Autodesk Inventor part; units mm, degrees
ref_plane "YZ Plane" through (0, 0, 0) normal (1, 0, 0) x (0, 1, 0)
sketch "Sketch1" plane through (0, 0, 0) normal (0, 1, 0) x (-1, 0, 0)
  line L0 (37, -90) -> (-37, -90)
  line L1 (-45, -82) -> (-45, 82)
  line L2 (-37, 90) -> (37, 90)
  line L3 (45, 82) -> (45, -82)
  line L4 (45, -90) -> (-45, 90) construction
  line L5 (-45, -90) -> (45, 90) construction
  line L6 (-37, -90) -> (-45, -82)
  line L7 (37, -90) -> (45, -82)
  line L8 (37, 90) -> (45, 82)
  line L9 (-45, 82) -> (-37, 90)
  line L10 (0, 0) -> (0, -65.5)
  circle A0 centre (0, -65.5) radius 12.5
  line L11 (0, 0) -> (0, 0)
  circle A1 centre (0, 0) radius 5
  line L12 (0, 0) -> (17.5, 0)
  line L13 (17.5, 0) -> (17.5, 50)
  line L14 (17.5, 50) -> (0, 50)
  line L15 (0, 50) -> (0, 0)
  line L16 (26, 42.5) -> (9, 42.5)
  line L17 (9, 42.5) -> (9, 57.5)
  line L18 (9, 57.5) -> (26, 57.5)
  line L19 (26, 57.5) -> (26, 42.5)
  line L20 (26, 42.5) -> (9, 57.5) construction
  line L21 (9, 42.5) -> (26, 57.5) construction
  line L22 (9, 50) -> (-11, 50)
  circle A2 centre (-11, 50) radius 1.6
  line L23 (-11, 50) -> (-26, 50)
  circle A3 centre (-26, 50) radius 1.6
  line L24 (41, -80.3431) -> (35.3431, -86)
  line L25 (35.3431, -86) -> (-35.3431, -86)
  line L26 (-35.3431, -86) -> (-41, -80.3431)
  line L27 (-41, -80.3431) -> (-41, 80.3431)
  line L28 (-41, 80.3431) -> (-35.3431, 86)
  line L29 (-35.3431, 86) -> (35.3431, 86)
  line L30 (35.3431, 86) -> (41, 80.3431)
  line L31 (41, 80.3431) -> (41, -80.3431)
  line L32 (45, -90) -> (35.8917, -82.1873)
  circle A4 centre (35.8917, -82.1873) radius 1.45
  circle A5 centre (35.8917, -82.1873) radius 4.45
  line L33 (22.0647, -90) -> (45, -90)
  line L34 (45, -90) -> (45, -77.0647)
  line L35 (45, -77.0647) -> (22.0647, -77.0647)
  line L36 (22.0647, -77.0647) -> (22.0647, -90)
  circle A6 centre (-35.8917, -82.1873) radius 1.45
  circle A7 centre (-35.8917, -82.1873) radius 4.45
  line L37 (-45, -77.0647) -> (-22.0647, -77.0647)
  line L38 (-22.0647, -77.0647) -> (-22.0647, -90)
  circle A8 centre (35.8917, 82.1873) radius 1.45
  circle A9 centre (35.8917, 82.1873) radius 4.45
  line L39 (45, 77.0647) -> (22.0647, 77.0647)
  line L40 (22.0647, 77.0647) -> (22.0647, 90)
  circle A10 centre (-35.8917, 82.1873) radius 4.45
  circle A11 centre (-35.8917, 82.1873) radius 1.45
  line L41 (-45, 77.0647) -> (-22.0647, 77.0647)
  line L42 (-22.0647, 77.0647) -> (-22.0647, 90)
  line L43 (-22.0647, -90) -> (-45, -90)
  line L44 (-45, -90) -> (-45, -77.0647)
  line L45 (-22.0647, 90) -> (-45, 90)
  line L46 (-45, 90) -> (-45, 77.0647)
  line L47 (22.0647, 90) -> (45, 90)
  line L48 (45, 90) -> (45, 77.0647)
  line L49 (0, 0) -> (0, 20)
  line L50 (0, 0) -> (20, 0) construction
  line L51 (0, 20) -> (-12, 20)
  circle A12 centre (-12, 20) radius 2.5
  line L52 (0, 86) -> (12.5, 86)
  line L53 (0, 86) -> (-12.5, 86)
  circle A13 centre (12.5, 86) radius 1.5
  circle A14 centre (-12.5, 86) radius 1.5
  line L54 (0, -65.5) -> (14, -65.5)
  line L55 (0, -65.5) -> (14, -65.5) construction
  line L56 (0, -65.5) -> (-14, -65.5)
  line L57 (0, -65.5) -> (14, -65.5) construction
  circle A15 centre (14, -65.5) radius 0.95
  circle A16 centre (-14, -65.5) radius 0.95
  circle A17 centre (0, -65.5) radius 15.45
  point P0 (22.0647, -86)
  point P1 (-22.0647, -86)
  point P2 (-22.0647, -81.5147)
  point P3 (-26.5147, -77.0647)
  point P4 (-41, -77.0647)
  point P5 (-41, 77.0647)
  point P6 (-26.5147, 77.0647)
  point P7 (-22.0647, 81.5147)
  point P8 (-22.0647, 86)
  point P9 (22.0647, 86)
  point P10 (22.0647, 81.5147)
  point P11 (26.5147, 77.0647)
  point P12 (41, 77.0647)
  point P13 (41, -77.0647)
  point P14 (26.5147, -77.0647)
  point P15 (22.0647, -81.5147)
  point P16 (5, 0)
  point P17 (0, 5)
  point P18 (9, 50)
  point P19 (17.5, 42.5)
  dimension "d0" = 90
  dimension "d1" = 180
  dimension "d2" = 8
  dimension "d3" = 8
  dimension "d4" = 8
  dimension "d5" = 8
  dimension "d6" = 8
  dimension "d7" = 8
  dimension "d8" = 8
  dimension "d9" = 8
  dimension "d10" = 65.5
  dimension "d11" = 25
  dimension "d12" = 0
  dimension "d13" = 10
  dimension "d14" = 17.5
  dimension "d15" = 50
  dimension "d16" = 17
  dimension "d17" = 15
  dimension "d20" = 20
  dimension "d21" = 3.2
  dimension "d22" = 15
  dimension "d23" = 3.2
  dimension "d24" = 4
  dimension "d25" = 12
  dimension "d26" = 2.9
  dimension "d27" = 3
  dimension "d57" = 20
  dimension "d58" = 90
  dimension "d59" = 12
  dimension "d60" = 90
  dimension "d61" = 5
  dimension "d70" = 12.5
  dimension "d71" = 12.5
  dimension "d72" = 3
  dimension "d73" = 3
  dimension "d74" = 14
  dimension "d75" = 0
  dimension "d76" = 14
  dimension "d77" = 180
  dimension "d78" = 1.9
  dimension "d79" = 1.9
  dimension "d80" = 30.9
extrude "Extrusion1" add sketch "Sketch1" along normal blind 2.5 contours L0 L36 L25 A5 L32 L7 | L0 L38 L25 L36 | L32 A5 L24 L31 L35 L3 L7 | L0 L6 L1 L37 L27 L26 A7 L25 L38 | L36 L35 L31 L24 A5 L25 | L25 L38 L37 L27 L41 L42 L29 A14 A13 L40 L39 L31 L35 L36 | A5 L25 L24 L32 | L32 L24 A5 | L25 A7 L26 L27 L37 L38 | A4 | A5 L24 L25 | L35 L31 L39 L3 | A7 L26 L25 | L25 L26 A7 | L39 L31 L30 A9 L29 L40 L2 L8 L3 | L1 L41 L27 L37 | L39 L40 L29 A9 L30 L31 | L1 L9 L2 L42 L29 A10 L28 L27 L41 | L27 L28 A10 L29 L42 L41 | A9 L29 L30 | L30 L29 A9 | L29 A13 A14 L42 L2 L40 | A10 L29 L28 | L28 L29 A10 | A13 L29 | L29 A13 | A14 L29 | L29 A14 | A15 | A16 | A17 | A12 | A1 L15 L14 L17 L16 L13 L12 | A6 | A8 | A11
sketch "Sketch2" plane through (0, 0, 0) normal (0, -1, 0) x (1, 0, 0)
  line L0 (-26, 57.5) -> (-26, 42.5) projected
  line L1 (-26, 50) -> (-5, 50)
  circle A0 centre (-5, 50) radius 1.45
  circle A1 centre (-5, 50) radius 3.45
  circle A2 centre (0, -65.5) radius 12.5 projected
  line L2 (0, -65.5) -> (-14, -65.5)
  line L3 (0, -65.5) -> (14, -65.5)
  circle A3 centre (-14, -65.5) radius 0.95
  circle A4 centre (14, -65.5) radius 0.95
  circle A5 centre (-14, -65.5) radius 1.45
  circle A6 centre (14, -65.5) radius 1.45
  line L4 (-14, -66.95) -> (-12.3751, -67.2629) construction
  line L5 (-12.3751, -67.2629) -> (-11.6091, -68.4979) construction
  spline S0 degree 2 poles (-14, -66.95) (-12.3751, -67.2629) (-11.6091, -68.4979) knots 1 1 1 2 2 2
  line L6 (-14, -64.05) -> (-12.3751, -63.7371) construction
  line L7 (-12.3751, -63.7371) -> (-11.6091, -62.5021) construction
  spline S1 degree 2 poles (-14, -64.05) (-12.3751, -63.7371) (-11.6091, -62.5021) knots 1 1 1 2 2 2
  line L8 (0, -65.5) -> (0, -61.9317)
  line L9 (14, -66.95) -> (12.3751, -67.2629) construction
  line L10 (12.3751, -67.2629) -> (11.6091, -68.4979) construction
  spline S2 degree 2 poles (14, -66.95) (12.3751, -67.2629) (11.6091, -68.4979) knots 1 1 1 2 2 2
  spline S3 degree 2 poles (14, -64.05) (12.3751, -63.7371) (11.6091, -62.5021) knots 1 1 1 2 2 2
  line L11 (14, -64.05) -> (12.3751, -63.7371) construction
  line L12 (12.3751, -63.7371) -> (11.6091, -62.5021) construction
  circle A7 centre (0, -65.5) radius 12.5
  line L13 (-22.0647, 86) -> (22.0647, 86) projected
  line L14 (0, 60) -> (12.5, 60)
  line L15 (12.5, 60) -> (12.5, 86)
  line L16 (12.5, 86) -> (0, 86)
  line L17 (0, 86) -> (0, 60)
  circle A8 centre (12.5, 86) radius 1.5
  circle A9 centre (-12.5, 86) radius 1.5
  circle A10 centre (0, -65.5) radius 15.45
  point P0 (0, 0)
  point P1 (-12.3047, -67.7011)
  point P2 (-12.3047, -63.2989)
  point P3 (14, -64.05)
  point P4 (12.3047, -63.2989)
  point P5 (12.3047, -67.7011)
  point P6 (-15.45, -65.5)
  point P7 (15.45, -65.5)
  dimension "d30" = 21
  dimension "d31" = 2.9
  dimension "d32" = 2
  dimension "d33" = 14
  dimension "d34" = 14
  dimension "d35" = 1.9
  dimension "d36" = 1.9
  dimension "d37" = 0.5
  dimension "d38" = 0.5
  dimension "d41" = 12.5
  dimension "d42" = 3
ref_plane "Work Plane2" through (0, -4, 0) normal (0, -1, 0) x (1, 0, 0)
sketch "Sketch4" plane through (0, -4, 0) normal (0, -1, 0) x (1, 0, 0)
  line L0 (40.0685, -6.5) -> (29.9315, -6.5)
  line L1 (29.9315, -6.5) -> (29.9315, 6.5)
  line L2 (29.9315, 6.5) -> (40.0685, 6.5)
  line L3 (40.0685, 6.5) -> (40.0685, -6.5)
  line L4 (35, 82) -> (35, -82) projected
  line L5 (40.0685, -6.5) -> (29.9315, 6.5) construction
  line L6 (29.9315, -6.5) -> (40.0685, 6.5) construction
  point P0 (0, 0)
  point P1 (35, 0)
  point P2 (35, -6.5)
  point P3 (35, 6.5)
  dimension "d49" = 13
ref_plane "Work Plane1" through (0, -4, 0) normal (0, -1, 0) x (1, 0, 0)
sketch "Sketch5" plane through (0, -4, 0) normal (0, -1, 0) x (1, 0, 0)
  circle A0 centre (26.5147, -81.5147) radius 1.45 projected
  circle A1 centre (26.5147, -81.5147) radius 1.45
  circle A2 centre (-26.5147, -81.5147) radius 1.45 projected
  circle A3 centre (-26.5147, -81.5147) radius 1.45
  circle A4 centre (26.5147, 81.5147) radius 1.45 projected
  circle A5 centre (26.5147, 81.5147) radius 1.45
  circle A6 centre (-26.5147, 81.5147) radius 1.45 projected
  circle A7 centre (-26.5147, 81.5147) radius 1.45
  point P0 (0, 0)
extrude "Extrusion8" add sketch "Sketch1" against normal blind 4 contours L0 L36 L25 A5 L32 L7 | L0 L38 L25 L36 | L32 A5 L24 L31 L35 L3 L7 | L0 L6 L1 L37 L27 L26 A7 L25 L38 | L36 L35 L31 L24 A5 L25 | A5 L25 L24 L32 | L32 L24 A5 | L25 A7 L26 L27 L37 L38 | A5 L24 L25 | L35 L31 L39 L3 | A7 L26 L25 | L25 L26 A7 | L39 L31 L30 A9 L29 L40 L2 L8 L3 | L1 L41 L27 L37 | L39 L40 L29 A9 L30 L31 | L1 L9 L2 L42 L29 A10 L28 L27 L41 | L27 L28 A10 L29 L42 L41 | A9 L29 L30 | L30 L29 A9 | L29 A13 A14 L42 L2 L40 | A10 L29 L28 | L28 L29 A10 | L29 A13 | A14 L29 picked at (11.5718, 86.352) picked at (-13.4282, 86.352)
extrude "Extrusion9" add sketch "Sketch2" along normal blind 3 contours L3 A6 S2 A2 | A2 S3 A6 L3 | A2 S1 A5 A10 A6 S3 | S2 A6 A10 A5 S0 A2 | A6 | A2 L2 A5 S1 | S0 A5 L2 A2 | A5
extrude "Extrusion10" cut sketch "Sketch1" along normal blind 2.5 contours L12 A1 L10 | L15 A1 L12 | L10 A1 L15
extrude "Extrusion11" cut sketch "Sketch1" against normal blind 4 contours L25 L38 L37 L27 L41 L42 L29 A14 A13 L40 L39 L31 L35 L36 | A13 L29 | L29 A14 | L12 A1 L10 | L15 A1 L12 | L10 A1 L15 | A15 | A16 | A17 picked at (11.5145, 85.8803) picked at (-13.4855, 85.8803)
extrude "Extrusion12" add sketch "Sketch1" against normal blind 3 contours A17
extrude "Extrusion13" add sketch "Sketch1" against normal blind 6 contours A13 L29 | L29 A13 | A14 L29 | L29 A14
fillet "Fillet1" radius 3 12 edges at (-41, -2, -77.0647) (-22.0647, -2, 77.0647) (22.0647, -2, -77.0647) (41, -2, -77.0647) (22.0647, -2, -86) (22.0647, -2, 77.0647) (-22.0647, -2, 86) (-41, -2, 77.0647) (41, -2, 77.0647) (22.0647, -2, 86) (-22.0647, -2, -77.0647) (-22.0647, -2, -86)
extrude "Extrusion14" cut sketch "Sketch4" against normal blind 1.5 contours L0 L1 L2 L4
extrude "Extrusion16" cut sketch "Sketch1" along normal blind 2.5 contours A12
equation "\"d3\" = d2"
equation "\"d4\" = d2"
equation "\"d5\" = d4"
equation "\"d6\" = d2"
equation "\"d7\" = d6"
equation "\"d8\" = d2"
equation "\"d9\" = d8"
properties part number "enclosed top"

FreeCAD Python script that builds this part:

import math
import FreeCAD as App
import Part
import Sketcher


def edges_at(feature, points):
    """Names of the edges that pass closest to the given points."""
    edges = feature.Shape.Edges
    near = lambda p: min(range(len(edges)), key=lambda i: edges[i].distToShape(Part.Vertex(*p))[0])
    return sorted({f"Edge{near(p) + 1}" for p in points})

doc = App.newDocument("Part")
params = doc.addObject("Spreadsheet::Sheet", "Params")
for row, (alias, value) in enumerate([
    ("sketch1_diameter", "10 mm"),
    ("sketch1_diameter2", "3.2 mm"),
    ("sketch1_radius", "12.5 mm"),
    ("sketch1_width", "17 mm"),
    ("sketch1_height", "15 mm"),
    ("pad1_length", "2.5 mm"),
    ("sketch2_diameter", "2.9 mm"),
    ("pad2_length", "4 mm"),
    ("sketch3_diameter", "25 mm"),
    ("sketch3_diameter2", "1.9 mm"),
    ("sketch3_diameter3", "30.9 mm"),
    ("pad3_length", "3 mm"),
    ("sketch4_diameter", "10 mm"),
    ("pocket1_length", "2.5 mm"),
    ("sketch5_diameter", "5 mm"),
    ("sketch5_radius", "5 mm"),
    ("sketch5_diameter2", "3.2 mm"),
    ("sketch5_radius2", "12.5 mm"),
    ("sketch5_width", "17 mm"),
    ("pocket2_length", "4 mm"),
    ("sketch6_diameter", "30.9 mm"),
    ("sketch6_diameter2", "1.9 mm"),
    ("sketch6_radius", "12.5 mm"),
    ("pad4_length", "3 mm"),
    ("sketch7_diameter", "3 mm"),
    ("pad5_length", "6 mm"),
    ("fillet_radius", "3 mm"),
    ("sketch8_height", "13 mm"),
    ("pocket3_length", "1.5 mm"),
    ("sketch9_diameter", "5 mm"),
    ("pocket4_length", "2.5 mm"),
], start=1):
    params.set(f"A{row}", alias)
    params.set(f"B{row}", "=" + value)
    params.setAlias(f"B{row}", alias)

body = doc.addObject("PartDesign::Body", "Body")

sketch1 = body.newObject("Sketcher::SketchObject", "Sketch")
sketch1.AttachmentSupport = (doc.getObject("XZ_Plane"), [""])
sketch1.MapMode = "FlatFace"
sketch1.addGeometry([
    Part.LineSegment(App.Vector(-37, -90, 0), App.Vector(-45, -82, 0)),
    Part.LineSegment(App.Vector(-45, -82, 0), App.Vector(-45, 82, 0)),
    Part.LineSegment(App.Vector(-45, 82, 0), App.Vector(-37, 90, 0)),
    Part.LineSegment(App.Vector(-37, 90, 0), App.Vector(37, 90, 0)),
    Part.LineSegment(App.Vector(37, 90, 0), App.Vector(45, 82, 0)),
    Part.LineSegment(App.Vector(45, 82, 0), App.Vector(45, -82, 0)),
    Part.LineSegment(App.Vector(45, -82, 0), App.Vector(37, -90, 0)),
    Part.LineSegment(App.Vector(37, -90, 0), App.Vector(-37, -90, 0)),
    Part.Circle(App.Vector(26, 50, 0), App.Vector(0, 0, 1), 1.6),
    Part.ArcOfCircle(Part.Circle(App.Vector(11, 50, 0), App.Vector(0, 0, 1), 1.6), math.radians(0), math.radians(180)),
    Part.ArcOfCircle(Part.Circle(App.Vector(11, 50, 0), App.Vector(0, 0, 1), 1.6), math.radians(180), math.radians(360)),
    Part.Circle(App.Vector(0, 0, 0), App.Vector(0, 0, 1), 5),
    Part.LineSegment(App.Vector(-26, 42.5, 0), App.Vector(-9, 42.5, 0)),
    Part.LineSegment(App.Vector(-9, 42.5, 0), App.Vector(-9, 57.5, 0)),
    Part.LineSegment(App.Vector(-9, 57.5, 0), App.Vector(-26, 57.5, 0)),
    Part.LineSegment(App.Vector(-26, 57.5, 0), App.Vector(-26, 42.5, 0)),
    Part.ArcOfCircle(Part.Circle(App.Vector(0, -65.5, 0), App.Vector(0, 0, 1), 12.5), math.radians(0), math.radians(90)),
    Part.ArcOfCircle(Part.Circle(App.Vector(0, -65.5, 0), App.Vector(0, 0, 1), 12.5), math.radians(90), math.radians(180)),
    Part.ArcOfCircle(Part.Circle(App.Vector(0, -65.5, 0), App.Vector(0, 0, 1), 12.5), math.radians(180), math.radians(360)),
], False)
sketch1.addConstraint([
    Sketcher.Constraint("Coincident", 0, 2, 1, 1),
    Sketcher.Constraint("Coincident", 1, 2, 2, 1),
    Sketcher.Constraint("Coincident", 2, 2, 3, 1),
    Sketcher.Constraint("Coincident", 3, 2, 4, 1),
    Sketcher.Constraint("Coincident", 4, 2, 5, 1),
    Sketcher.Constraint("Coincident", 5, 2, 6, 1),
    Sketcher.Constraint("Coincident", 6, 2, 7, 1),
    Sketcher.Constraint("Coincident", 7, 2, 0, 1),
    Sketcher.Constraint("Tangent", 9, 1, 10, 2),
    Sketcher.Constraint("Coincident", 10, 1, 9, 2),
    Sketcher.Constraint("Coincident", 12, 2, 13, 1),
    Sketcher.Constraint("Coincident", 13, 2, 14, 1),
    Sketcher.Constraint("Coincident", 14, 2, 15, 1),
    Sketcher.Constraint("Coincident", 15, 2, 12, 1),
    Sketcher.Constraint("Tangent", 16, 2, 17, 1),
    Sketcher.Constraint("Tangent", 17, 2, 18, 1),
    Sketcher.Constraint("Tangent", 18, 2, 16, 1),
    Sketcher.Constraint("Vertical", 1),
    Sketcher.Constraint("Horizontal", 3),
    Sketcher.Constraint("Vertical", 5),
    Sketcher.Constraint("Horizontal", 7),
    Sketcher.Constraint("Horizontal", 12),
    Sketcher.Constraint("Vertical", 13),
    Sketcher.Constraint("Horizontal", 14),
    Sketcher.Constraint("Vertical", 15),
    Sketcher.Constraint("Coincident", 11, 3, -1, 1),
    Sketcher.Constraint("Equal", 8, 9),
    Sketcher.Constraint("Symmetric", 0, 2, 4, 2, -1, 1),
    Sketcher.Constraint("Symmetric", 2, 2, 6, 2, -1, 1),
    Sketcher.Constraint("Symmetric", 17, 2, 18, 2, -2),
    Sketcher.Constraint("PointOnObject", 16, 2, -2),
    Sketcher.Constraint("Perpendicular", 0, 2),
    Sketcher.Constraint("Perpendicular", 2, 4),
    Sketcher.Constraint("Perpendicular", 4, 6),
    Sketcher.Constraint("Horizontal", 8, 3, 9, 3),
    Sketcher.Constraint("Horizontal", 1, 2, 4, 2),
    Sketcher.Constraint("Horizontal", 10, 3, 9, 1),
    Sketcher.Constraint("Horizontal", 9, 1, 10, 1),
    Sketcher.Constraint("Horizontal", 18, 3, 17, 2),
    Sketcher.Constraint("Vertical", 3, 2, 6, 2),
    Sketcher.Constraint("Diameter", 11, 10.0),
    Sketcher.Constraint("Diameter", 8, 3.2),
    Sketcher.Constraint("Radius", 16, 12.5),
    Sketcher.Constraint("DistanceX", 12, 1, 12, 2, 17.0),
    Sketcher.Constraint("DistanceY", 13, 1, 13, 2, 15.0),
    Sketcher.Constraint("DistanceY", -1, 1, 8, 3, 50.0),
    Sketcher.Constraint("DistanceY", -1, 1, 2, 2, 90.0),
    Sketcher.Constraint("DistanceX", 9, 3, 8, 3, 15.0),
    Sketcher.Constraint("DistanceX", 1, 2, 2, 2, 8.0),
    Sketcher.Constraint("DistanceX", 0, 2, 5, 2, 90.0),
    Sketcher.Constraint("DistanceX", 12, 2, 9, 3, 20.0),
    Sketcher.Constraint("DistanceY", 16, 3, -1, 1, 65.5),
    Sketcher.Constraint("DistanceX", -1, 1, 8, 3, 26.0),
    Sketcher.Constraint("DistanceY", -1, 1, 12, 2, 42.5),
])
sketch1.setExpression("Constraints[40]", "Params.sketch1_diameter")
sketch1.setExpression("Constraints[41]", "Params.sketch1_diameter2")
sketch1.setExpression("Constraints[42]", "Params.sketch1_radius")
sketch1.setExpression("Constraints[43]", "Params.sketch1_width")
sketch1.setExpression("Constraints[44]", "Params.sketch1_height")
pad1 = body.newObject("PartDesign::Pad", "Pad")
pad1.Profile = sketch1
pad1.setExpression("Length", "Params.pad1_length")
pad1.Reversed = True

sketch2 = body.newObject("Sketcher::SketchObject", "Sketch001")
sketch2.AttachmentSupport = (doc.getObject("XZ_Plane"), [""])
sketch2.MapMode = "FlatFace"
sketch2.addGeometry([
    Part.LineSegment(App.Vector(-37, -90, 0), App.Vector(-45, -82, 0)),
    Part.LineSegment(App.Vector(-45, -82, 0), App.Vector(-45, 82, 0)),
    Part.LineSegment(App.Vector(-45, 82, 0), App.Vector(-37, 90, 0)),
    Part.LineSegment(App.Vector(-37, 90, 0), App.Vector(37, 90, 0)),
    Part.LineSegment(App.Vector(37, 90, 0), App.Vector(45, 82, 0)),
    Part.LineSegment(App.Vector(45, 82, 0), App.Vector(45, -82, 0)),
    Part.LineSegment(App.Vector(45, -82, 0), App.Vector(37, -90, 0)),
    Part.LineSegment(App.Vector(37, -90, 0), App.Vector(-37, -90, 0)),
    Part.LineSegment(App.Vector(-22.1, -86, 0), App.Vector(22.1, -86, 0)),
    Part.LineSegment(App.Vector(22.1, -86, 0), App.Vector(22.1, -77.1, 0)),
    Part.LineSegment(App.Vector(22.1, -77.1, 0), App.Vector(41, -77.1, 0)),
    Part.LineSegment(App.Vector(41, -77.1, 0), App.Vector(41, 77.1, 0)),
    Part.LineSegment(App.Vector(41, 77.1, 0), App.Vector(22.1, 77.1, 0)),
    Part.LineSegment(App.Vector(22.1, 77.1, 0), App.Vector(22.1, 86, 0)),
    Part.LineSegment(App.Vector(22.1, 86, 0), App.Vector(-22.1, 86, 0)),
    Part.LineSegment(App.Vector(-22.1, 86, 0), App.Vector(-22.1, 77.1, 0)),
    Part.LineSegment(App.Vector(-22.1, 77.1, 0), App.Vector(-41, 77.1, 0)),
    Part.LineSegment(App.Vector(-41, 77.1, 0), App.Vector(-41, -77.1, 0)),
    Part.LineSegment(App.Vector(-41, -77.1, 0), App.Vector(-22.1, -77.1, 0)),
    Part.LineSegment(App.Vector(-22.1, -77.1, 0), App.Vector(-22.1, -86, 0)),
    Part.Circle(App.Vector(-35.9, -82.2, 0), App.Vector(0, 0, 1), 1.4),
    Part.Circle(App.Vector(35.9, -82.2, 0), App.Vector(0, 0, 1), 1.4),
    Part.Circle(App.Vector(-35.9, 82.2, 0), App.Vector(0, 0, 1), 1.4),
    Part.Circle(App.Vector(35.9, 82.2, 0), App.Vector(0, 0, 1), 1.4),
], False)
sketch2.addConstraint([
    Sketcher.Constraint("Coincident", 0, 2, 1, 1),
    Sketcher.Constraint("Coincident", 1, 2, 2, 1),
    Sketcher.Constraint("Coincident", 2, 2, 3, 1),
    Sketcher.Constraint("Coincident", 3, 2, 4, 1),
    Sketcher.Constraint("Coincident", 4, 2, 5, 1),
    Sketcher.Constraint("Coincident", 5, 2, 6, 1),
    Sketcher.Constraint("Coincident", 6, 2, 7, 1),
    Sketcher.Constraint("Coincident", 7, 2, 0, 1),
    Sketcher.Constraint("Coincident", 8, 2, 9, 1),
    Sketcher.Constraint("Coincident", 9, 2, 10, 1),
    Sketcher.Constraint("Coincident", 10, 2, 11, 1),
    Sketcher.Constraint("Coincident", 11, 2, 12, 1),
    Sketcher.Constraint("Coincident", 12, 2, 13, 1),
    Sketcher.Constraint("Coincident", 13, 2, 14, 1),
    Sketcher.Constraint("Coincident", 14, 2, 15, 1),
    Sketcher.Constraint("Coincident", 15, 2, 16, 1),
    Sketcher.Constraint("Coincident", 16, 2, 17, 1),
    Sketcher.Constraint("Coincident", 17, 2, 18, 1),
    Sketcher.Constraint("Coincident", 18, 2, 19, 1),
    Sketcher.Constraint("Coincident", 19, 2, 8, 1),
    Sketcher.Constraint("Vertical", 1),
    Sketcher.Constraint("Horizontal", 3),
    Sketcher.Constraint("Vertical", 5),
    Sketcher.Constraint("Horizontal", 7),
    Sketcher.Constraint("Horizontal", 8),
    Sketcher.Constraint("Vertical", 9),
    Sketcher.Constraint("Horizontal", 10),
    Sketcher.Constraint("Vertical", 11),
    Sketcher.Constraint("Horizontal", 12),
    Sketcher.Constraint("Vertical", 13),
    Sketcher.Constraint("Horizontal", 14),
    Sketcher.Constraint("Vertical", 15),
    Sketcher.Constraint("Horizontal", 16),
    Sketcher.Constraint("Vertical", 17),
    Sketcher.Constraint("Horizontal", 18),
    Sketcher.Constraint("Vertical", 19),
    Sketcher.Constraint("Equal", 20, 21),
    Sketcher.Constraint("Equal", 21, 22),
    Sketcher.Constraint("Equal", 22, 23),
    Sketcher.Constraint("Symmetric", 21, 3, 22, 3, -1, 1),
    Sketcher.Constraint("Symmetric", 20, 3, 23, 3, -1, 1),
    Sketcher.Constraint("Symmetric", 0, 2, 4, 2, -1, 1),
    Sketcher.Constraint("Symmetric", 2, 2, 6, 2, -1, 1),
    Sketcher.Constraint("Symmetric", 8, 2, 14, 2, -1, 1),
    Sketcher.Constraint("Symmetric", 10, 2, 16, 2, -1, 1),
    Sketcher.Constraint("Symmetric", 12, 2, 18, 2, -1, 1),
    Sketcher.Constraint("Symmetric", 20, 3, 21, 3, -2),
    Sketcher.Constraint("Symmetric", 12, 2, 15, 2, -2),
    Sketcher.Constraint("Perpendicular", 0, 2),
    Sketcher.Constraint("Perpendicular", 2, 4),
    Sketcher.Constraint("Perpendicular", 4, 6),
    Sketcher.Constraint("Horizontal", 1, 2, 4, 2),
    Sketcher.Constraint("Vertical", 3, 2, 6, 2),
    Sketcher.Constraint("Diameter", 20, 2.9),
    Sketcher.Constraint("DistanceY", -1, 1, 2, 2, 90.0),
    Sketcher.Constraint("DistanceX", 1, 2, 2, 2, 8.0),
    Sketcher.Constraint("DistanceX", 1, 2, 4, 2, 90.0),
    Sketcher.Constraint("DistanceY", 6, 2, 8, 2, 4.0),
    Sketcher.Constraint("DistanceX", 10, 2, 5, 2, 4.0),
    Sketcher.Constraint("DistanceX", 8, 1, 8, 2, 44.1294),
    Sketcher.Constraint("DistanceY", 9, 1, 9, 2, 8.9353),
    Sketcher.Constraint("DistanceX", 8, 2, 21, 3, 13.827),
    Sketcher.Constraint("DistanceY", 20, 3, -1, 1, 82.1873),
])
sketch2.setExpression("Constraints[53]", "Params.sketch2_diameter")
pad2 = body.newObject("PartDesign::Pad", "Pad001")
pad2.Profile = sketch2
pad2.setExpression("Length", "Params.pad2_length")

sketch3 = body.newObject("Sketcher::SketchObject", "Sketch002")
sketch3.AttachmentSupport = (doc.getObject("XZ_Plane"), [""])
sketch3.MapMode = "FlatFace"
sketch3.addGeometry([
    Part.Circle(App.Vector(0, -65.5, 0), App.Vector(0, 0, 1), 15.4),
    Part.Circle(App.Vector(0, -65.5, 0), App.Vector(0, 0, 1), 12.5),
    Part.Circle(App.Vector(14, -65.5, 0), App.Vector(0, 0, 1), 0.9),
    Part.Circle(App.Vector(-14, -65.5, 0), App.Vector(0, 0, 1), 0.9),
], False)
sketch3.addConstraint([
    Sketcher.Constraint("Coincident", 1, 3, 0, 3),
    Sketcher.Constraint("Equal", 2, 3),
    Sketcher.Constraint("Symmetric", 2, 3, 3, 3, -2),
    Sketcher.Constraint("PointOnObject", 0, 3, -2),
    Sketcher.Constraint("Horizontal", 1, 3, 2, 3),
    Sketcher.Constraint("Diameter", 1, 25.0),
    Sketcher.Constraint("Diameter", 2, 1.9),
    Sketcher.Constraint("DistanceX", -1, 1, 2, 3, 14.0),
    Sketcher.Constraint("Diameter", 0, 30.9),
    Sketcher.Constraint("DistanceY", 0, 3, -1, 1, 65.5),
])
sketch3.setExpression("Constraints[5]", "Params.sketch3_diameter")
sketch3.setExpression("Constraints[6]", "Params.sketch3_diameter2")
sketch3.setExpression("Constraints[8]", "Params.sketch3_diameter3")
pad3 = body.newObject("PartDesign::Pad", "Pad002")
pad3.Profile = sketch3
pad3.setExpression("Length", "Params.pad3_length")

sketch4 = body.newObject("Sketcher::SketchObject", "Sketch003")
sketch4.AttachmentSupport = (doc.getObject("XZ_Plane"), [""])
sketch4.MapMode = "FlatFace"
sketch4.addGeometry(Part.Circle(App.Vector(0, 0, 0), App.Vector(0, 0, 1), 5), False)
sketch4.addConstraint([
    Sketcher.Constraint("Coincident", 0, 3, -1, 1),
    Sketcher.Constraint("Diameter", 0, 10.0),
])
sketch4.setExpression("Constraints[1]", "Params.sketch4_diameter")
pocket1 = body.newObject("PartDesign::Pocket", "Pocket")
pocket1.Profile = sketch4
pocket1.setExpression("Length", "Params.pocket1_length")

sketch5 = body.newObject("Sketcher::SketchObject", "Sketch004")
sketch5.AttachmentSupport = (doc.getObject("XZ_Plane"), [""])
sketch5.MapMode = "FlatFace"
sketch5.addGeometry([
    Part.LineSegment(App.Vector(22.1, -86, 0), App.Vector(-22.1, -86, 0)),
    Part.LineSegment(App.Vector(-22.1, -86, 0), App.Vector(-22.1, -77.1, 0)),
    Part.LineSegment(App.Vector(-22.1, -77.1, 0), App.Vector(-41, -77.1, 0)),
    Part.LineSegment(App.Vector(-41, -77.1, 0), App.Vector(-41, 77.1, 0)),
    Part.LineSegment(App.Vector(-41, 77.1, 0), App.Vector(-22.1, 77.1, 0)),
    Part.LineSegment(App.Vector(-22.1, 77.1, 0), App.Vector(-22.1, 86, 0)),
    Part.LineSegment(App.Vector(-22.1, 86, 0), App.Vector(22.1, 86, 0)),
    Part.LineSegment(App.Vector(22.1, 86, 0), App.Vector(22.1, 77.1, 0)),
    Part.LineSegment(App.Vector(22.1, 77.1, 0), App.Vector(41, 77.1, 0)),
    Part.LineSegment(App.Vector(41, 77.1, 0), App.Vector(41, -77.1, 0)),
    Part.LineSegment(App.Vector(41, -77.1, 0), App.Vector(22.1, -77.1, 0)),
    Part.LineSegment(App.Vector(22.1, -77.1, 0), App.Vector(22.1, -86, 0)),
    Part.Circle(App.Vector(12, 20, 0), App.Vector(0, 0, 1), 2.5),
    Part.Circle(App.Vector(26, 50, 0), App.Vector(0, 0, 1), 1.6),
    Part.ArcOfCircle(Part.Circle(App.Vector(11, 50, 0), App.Vector(0, 0, 1), 1.6), math.radians(0), math.radians(180)),
    Part.ArcOfCircle(Part.Circle(App.Vector(11, 50, 0), App.Vector(0, 0, 1), 1.6), math.radians(180), math.radians(360)),
    Part.LineSegment(App.Vector(-17.5, 0, 0), App.Vector(-5, 0, 0)),
    Part.ArcOfCircle(Part.Circle(App.Vector(0, 0, 0), App.Vector(0, 0, 1), 5), math.radians(90), math.radians(180)),
    Part.LineSegment(App.Vector(0, 5, 0), App.Vector(0, 20, 0)),
    Part.LineSegment(App.Vector(0, 20, 0), App.Vector(0, 50, 0)),
    Part.LineSegment(App.Vector(0, 50, 0), App.Vector(-9, 50, 0)),
    Part.LineSegment(App.Vector(-9, 50, 0), App.Vector(-9, 57.5, 0)),
    Part.LineSegment(App.Vector(-9, 57.5, 0), App.Vector(-26, 57.5, 0)),
    Part.LineSegment(App.Vector(-26, 57.5, 0), App.Vector(-26, 42.5, 0)),
    Part.LineSegment(App.Vector(-26, 42.5, 0), App.Vector(-17.5, 42.5, 0)),
    Part.LineSegment(App.Vector(-17.5, 42.5, 0), App.Vector(-17.5, 0, 0)),
    Part.ArcOfCircle(Part.Circle(App.Vector(0, -65.5, 0), App.Vector(0, 0, 1), 12.5), math.radians(0), math.radians(90)),
    Part.ArcOfCircle(Part.Circle(App.Vector(0, -65.5, 0), App.Vector(0, 0, 1), 12.5), math.radians(90), math.radians(180)),
    Part.ArcOfCircle(Part.Circle(App.Vector(0, -65.5, 0), App.Vector(0, 0, 1), 12.5), math.radians(180), math.radians(360)),
], False)
sketch5.addConstraint([
    Sketcher.Constraint("Coincident", 0, 2, 1, 1),
    Sketcher.Constraint("Coincident", 1, 2, 2, 1),
    Sketcher.Constraint("Coincident", 2, 2, 3, 1),
    Sketcher.Constraint("Coincident", 3, 2, 4, 1),
    Sketcher.Constraint("Coincident", 4, 2, 5, 1),
    Sketcher.Constraint("Coincident", 5, 2, 6, 1),
    Sketcher.Constraint("Coincident", 6, 2, 7, 1),
    Sketcher.Constraint("Coincident", 7, 2, 8, 1),
    Sketcher.Constraint("Coincident", 8, 2, 9, 1),
    Sketcher.Constraint("Coincident", 9, 2, 10, 1),
    Sketcher.Constraint("Coincident", 10, 2, 11, 1),
    Sketcher.Constraint("Coincident", 11, 2, 0, 1),
    Sketcher.Constraint("Tangent", 14, 1, 15, 2),
    Sketcher.Constraint("Coincident", 15, 1, 14, 2),
    Sketcher.Constraint("Coincident", 16, 2, 17, 2),
    Sketcher.Constraint("Coincident", 17, 1, 18, 1),
    Sketcher.Constraint("Coincident", 18, 2, 19, 1),
    Sketcher.Constraint("Coincident", 19, 2, 20, 1),
    Sketcher.Constraint("Coincident", 20, 2, 21, 1),
    Sketcher.Constraint("Coincident", 21, 2, 22, 1),
    Sketcher.Constraint("Coincident", 22, 2, 23, 1),
    Sketcher.Constraint("Coincident", 23, 2, 24, 1),
    Sketcher.Constraint("Coincident", 24, 2, 25, 1),
    Sketcher.Constraint("Coincident", 25, 2, 16, 1),
    Sketcher.Constraint("Tangent", 26, 2, 27, 1),
    Sketcher.Constraint("Tangent", 27, 2, 28, 1),
    Sketcher.Constraint("Tangent", 28, 2, 26, 1),
    Sketcher.Constraint("Horizontal", 0),
    Sketcher.Constraint("Vertical", 1),
    Sketcher.Constraint("Horizontal", 2),
    Sketcher.Constraint("Vertical", 3),
    Sketcher.Constraint("Horizontal", 4),
    Sketcher.Constraint("Vertical", 5),
    Sketcher.Constraint("Horizontal", 6),
    Sketcher.Constraint("Vertical", 7),
    Sketcher.Constraint("Horizontal", 8),
    Sketcher.Constraint("Vertical", 9),
    Sketcher.Constraint("Horizontal", 10),
    Sketcher.Constraint("Vertical", 11),
    Sketcher.Constraint("Horizontal", 16),
    Sketcher.Constraint("Vertical", 18),
    Sketcher.Constraint("Vertical", 19),
    Sketcher.Constraint("Horizontal", 20),
    Sketcher.Constraint("Vertical", 21),
    Sketcher.Constraint("Horizontal", 22),
    Sketcher.Constraint("Vertical", 23),
    Sketcher.Constraint("Horizontal", 24),
    Sketcher.Constraint("Vertical", 25),
    Sketcher.Constraint("Coincident", 17, 3, -1, 1),
    Sketcher.Constraint("Equal", 13, 14),
    Sketcher.Constraint("Symmetric", 0, 2, 6, 2, -1, 1),
    Sketcher.Constraint("Symmetric", 2, 2, 8, 2, -1, 1),
    Sketcher.Constraint("Symmetric", 4, 2, 10, 2, -1, 1),
    Sketcher.Constraint("Symmetric", 4, 2, 7, 2, -2),
    Sketcher.Constraint("Symmetric", 27, 2, 28, 2, -2),
    Sketcher.Constraint("PointOnObject", 16, 2, -1),
    Sketcher.Constraint("PointOnObject", 17, 1, -2),
    Sketcher.Constraint("PointOnObject", 26, 2, -2),
    Sketcher.Constraint("Horizontal", 13, 3, 14, 3),
    Sketcher.Constraint("Horizontal", 15, 3, 14, 1),
    Sketcher.Constraint("Horizontal", 14, 1, 15, 1),
    Sketcher.Constraint("Horizontal", 12, 3, 18, 2),
    Sketcher.Constraint("Horizontal", 15, 1, 19, 2),
    Sketcher.Constraint("Horizontal", 28, 3, 27, 2),
    Sketcher.Constraint("Equal", 18, 23),
    Sketcher.Constraint("Diameter", 12, 5.0),
    Sketcher.Constraint("Radius", 17, 5.0),
    Sketcher.Constraint("Diameter", 13, 3.2),
    Sketcher.Constraint("Radius", 26, 12.5),
    Sketcher.Constraint("DistanceX", 22, 2, 22, 1, 17.0),
    Sketcher.Constraint("DistanceY", 18, 1, 18, 2, 15.0),
    Sketcher.Constraint("DistanceX", 16, 1, 16, 2, 12.5),
    Sketcher.Constraint("DistanceX", -1, 1, 12, 3, 12.0),
    Sketcher.Constraint("DistanceY", -1, 1, 13, 3, 50.0),
    Sketcher.Constraint("DistanceX", 12, 3, 13, 3, 14.0),
    Sketcher.Constraint("DistanceX", 14, 3, 13, 3, 15.0),
    Sketcher.Constraint("DistanceX", 13, 3, 8, 2, 15.0),
    Sketcher.Constraint("DistanceX", 20, 2, 14, 3, 20.0),
    Sketcher.Constraint("DistanceY", 26, 3, -1, 1, 65.5),
    Sketcher.Constraint("DistanceY", 21, 1, 21, 2, 7.5),
    Sketcher.Constraint("DistanceY", 0, 2, -1, 1, 86.0),
    Sketcher.Constraint("DistanceX", 0, 2, 0, 1, 44.1294),
    Sketcher.Constraint("DistanceY", 1, 1, 1, 2, 8.9353),
])
sketch5.setExpression("Constraints[65]", "Params.sketch5_diameter")
sketch5.setExpression("Constraints[66]", "Params.sketch5_radius")
sketch5.setExpression("Constraints[67]", "Params.sketch5_diameter2")
sketch5.setExpression("Constraints[68]", "Params.sketch5_radius2")
sketch5.setExpression("Constraints[69]", "Params.sketch5_width")
pocket2 = body.newObject("PartDesign::Pocket", "Pocket001")
pocket2.Profile = sketch5
pocket2.setExpression("Length", "Params.pocket2_length")
pocket2.Reversed = True

sketch6 = body.newObject("Sketcher::SketchObject", "Sketch005")
sketch6.AttachmentSupport = (doc.getObject("XZ_Plane"), [""])
sketch6.MapMode = "FlatFace"
sketch6.addGeometry([
    Part.Circle(App.Vector(0, -65.5, 0), App.Vector(0, 0, 1), 15.4),
    Part.Circle(App.Vector(14, -65.5, 0), App.Vector(0, 0, 1), 0.9),
    Part.ArcOfCircle(Part.Circle(App.Vector(0, -65.5, 0), App.Vector(0, 0, 1), 12.5), math.radians(0), math.radians(90)),
    Part.ArcOfCircle(Part.Circle(App.Vector(0, -65.5, 0), App.Vector(0, 0, 1), 12.5), math.radians(90), math.radians(180)),
    Part.ArcOfCircle(Part.Circle(App.Vector(0, -65.5, 0), App.Vector(0, 0, 1), 12.5), math.radians(180), math.radians(360)),
    Part.Circle(App.Vector(-14, -65.5, 0), App.Vector(0, 0, 1), 0.9),
], False)
sketch6.addConstraint([
    Sketcher.Constraint("Tangent", 2, 2, 3, 1),
    Sketcher.Constraint("Tangent", 3, 2, 4, 1),
    Sketcher.Constraint("Tangent", 4, 2, 2, 1),
    Sketcher.Constraint("Coincident", 2, 3, 0, 3),
    Sketcher.Constraint("Equal", 1, 5),
    Sketcher.Constraint("Symmetric", 1, 3, 5, 3, -2),
    Sketcher.Constraint("Symmetric", 3, 2, 4, 2, -2),
    Sketcher.Constraint("PointOnObject", 2, 2, -2),
    Sketcher.Constraint("Horizontal", 0, 3, 1, 3),
    Sketcher.Constraint("Horizontal", 5, 3, 3, 2),
    Sketcher.Constraint("Diameter", 0, 30.9),
    Sketcher.Constraint("Diameter", 1, 1.9),
    Sketcher.Constraint("Radius", 2, 12.5),
    Sketcher.Constraint("DistanceX", -1, 1, 1, 3, 14.0),
    Sketcher.Constraint("DistanceY", 0, 3, -1, 1, 65.5),
])
sketch6.setExpression("Constraints[10]", "Params.sketch6_diameter")
sketch6.setExpression("Constraints[11]", "Params.sketch6_diameter2")
sketch6.setExpression("Constraints[12]", "Params.sketch6_radius")
pad4 = body.newObject("PartDesign::Pad", "Pad003")
pad4.Profile = sketch6
pad4.setExpression("Length", "Params.pad4_length")

sketch7 = body.newObject("Sketcher::SketchObject", "Sketch006")
sketch7.AttachmentSupport = (doc.getObject("XZ_Plane"), [""])
sketch7.MapMode = "FlatFace"
sketch7.addGeometry([
    Part.Circle(App.Vector(-12.5, 86, 0), App.Vector(0, 0, 1), 1.5),
    Part.Circle(App.Vector(12.5, 86, 0), App.Vector(0, 0, 1), 1.5),
], False)
sketch7.addConstraint([
    Sketcher.Constraint("Equal", 0, 1),
    Sketcher.Constraint("Symmetric", 0, 3, 1, 3, -2),
    Sketcher.Constraint("Diameter", 0, 3.0),
    Sketcher.Constraint("DistanceX", 0, 3, 1, 3, 25.0),
    Sketcher.Constraint("DistanceY", -1, 1, 0, 3, 86.0),
])
sketch7.setExpression("Constraints[2]", "Params.sketch7_diameter")
pad5 = body.newObject("PartDesign::Pad", "Pad004")
pad5.Profile = sketch7
pad5.setExpression("Length", "Params.pad5_length")
doc.recompute()

fillet = body.newObject("PartDesign::Fillet", "Fillet")
fillet.Base = (pad5, edges_at(pad5, [
    (-41, -2, -77.065),
    (-22.065, -2, 77.065),
    (22.065, -2, -77.065),
    (41, -2, -77.065),
    (22.065, -2, -86),
    (22.065, -2, 77.065),
    (-22.065, -2, 86),
    (-41, -2, 77.065),
    (41, -2, 77.065),
    (22.065, -2, 86),
    (-22.065, -2, -77.065),
    (-22.065, -2, -86),
]))
fillet.setExpression("Radius", "Params.fillet_radius")

sketch8 = body.newObject("Sketcher::SketchObject", "Sketch007")
sketch8.AttachmentSupport = (doc.getObject("XZ_Plane"), [""])
sketch8.MapMode = "FlatFace"
sketch8.AttachmentOffset = App.Placement(App.Vector(0, 0, 4), App.Rotation())
sketch8.addGeometry([
    Part.LineSegment(App.Vector(30, -6, 0), App.Vector(35, -6, 0)),
    Part.LineSegment(App.Vector(35, -6, 0), App.Vector(35, 6, 0)),
    Part.LineSegment(App.Vector(35, 6, 0), App.Vector(30, 6, 0)),
    Part.LineSegment(App.Vector(30, 6, 0), App.Vector(30, -6, 0)),
], False)
sketch8.addConstraint([
    Sketcher.Constraint("Coincident", 0, 2, 1, 1),
    Sketcher.Constraint("Coincident", 1, 2, 2, 1),
    Sketcher.Constraint("Coincident", 2, 2, 3, 1),
    Sketcher.Constraint("Coincident", 3, 2, 0, 1),
    Sketcher.Constraint("Horizontal", 0),
    Sketcher.Constraint("Vertical", 1),
    Sketcher.Constraint("Horizontal", 2),
    Sketcher.Constraint("Vertical", 3),
    Sketcher.Constraint("DistanceY", 1, 1, 1, 2, 13.0),
    Sketcher.Constraint("DistanceX", -1, 1, 0, 2, 35.0),
    Sketcher.Constraint("DistanceY", 0, 2, -1, 1, 6.5),
    Sketcher.Constraint("DistanceX", 0, 1, 0, 2, 5.0685),
])
sketch8.setExpression("Constraints[8]", "Params.sketch8_height")
pocket3 = body.newObject("PartDesign::Pocket", "Pocket002")
pocket3.Profile = sketch8
pocket3.setExpression("Length", "Params.pocket3_length")

sketch9 = body.newObject("Sketcher::SketchObject", "Sketch008")
sketch9.AttachmentSupport = (doc.getObject("XZ_Plane"), [""])
sketch9.MapMode = "FlatFace"
sketch9.addGeometry(Part.Circle(App.Vector(12, 20, 0), App.Vector(0, 0, 1), 2.5), False)
sketch9.addConstraint([
    Sketcher.Constraint("Diameter", 0, 5.0),
    Sketcher.Constraint("DistanceX", -1, 1, 0, 3, 12.0),
    Sketcher.Constraint("DistanceY", -1, 1, 0, 3, 20.0),
])
sketch9.setExpression("Constraints[0]", "Params.sketch9_diameter")
pocket4 = body.newObject("PartDesign::Pocket", "Pocket003")
pocket4.Profile = sketch9
pocket4.setExpression("Length", "Params.pocket4_length")

doc.recompute()
